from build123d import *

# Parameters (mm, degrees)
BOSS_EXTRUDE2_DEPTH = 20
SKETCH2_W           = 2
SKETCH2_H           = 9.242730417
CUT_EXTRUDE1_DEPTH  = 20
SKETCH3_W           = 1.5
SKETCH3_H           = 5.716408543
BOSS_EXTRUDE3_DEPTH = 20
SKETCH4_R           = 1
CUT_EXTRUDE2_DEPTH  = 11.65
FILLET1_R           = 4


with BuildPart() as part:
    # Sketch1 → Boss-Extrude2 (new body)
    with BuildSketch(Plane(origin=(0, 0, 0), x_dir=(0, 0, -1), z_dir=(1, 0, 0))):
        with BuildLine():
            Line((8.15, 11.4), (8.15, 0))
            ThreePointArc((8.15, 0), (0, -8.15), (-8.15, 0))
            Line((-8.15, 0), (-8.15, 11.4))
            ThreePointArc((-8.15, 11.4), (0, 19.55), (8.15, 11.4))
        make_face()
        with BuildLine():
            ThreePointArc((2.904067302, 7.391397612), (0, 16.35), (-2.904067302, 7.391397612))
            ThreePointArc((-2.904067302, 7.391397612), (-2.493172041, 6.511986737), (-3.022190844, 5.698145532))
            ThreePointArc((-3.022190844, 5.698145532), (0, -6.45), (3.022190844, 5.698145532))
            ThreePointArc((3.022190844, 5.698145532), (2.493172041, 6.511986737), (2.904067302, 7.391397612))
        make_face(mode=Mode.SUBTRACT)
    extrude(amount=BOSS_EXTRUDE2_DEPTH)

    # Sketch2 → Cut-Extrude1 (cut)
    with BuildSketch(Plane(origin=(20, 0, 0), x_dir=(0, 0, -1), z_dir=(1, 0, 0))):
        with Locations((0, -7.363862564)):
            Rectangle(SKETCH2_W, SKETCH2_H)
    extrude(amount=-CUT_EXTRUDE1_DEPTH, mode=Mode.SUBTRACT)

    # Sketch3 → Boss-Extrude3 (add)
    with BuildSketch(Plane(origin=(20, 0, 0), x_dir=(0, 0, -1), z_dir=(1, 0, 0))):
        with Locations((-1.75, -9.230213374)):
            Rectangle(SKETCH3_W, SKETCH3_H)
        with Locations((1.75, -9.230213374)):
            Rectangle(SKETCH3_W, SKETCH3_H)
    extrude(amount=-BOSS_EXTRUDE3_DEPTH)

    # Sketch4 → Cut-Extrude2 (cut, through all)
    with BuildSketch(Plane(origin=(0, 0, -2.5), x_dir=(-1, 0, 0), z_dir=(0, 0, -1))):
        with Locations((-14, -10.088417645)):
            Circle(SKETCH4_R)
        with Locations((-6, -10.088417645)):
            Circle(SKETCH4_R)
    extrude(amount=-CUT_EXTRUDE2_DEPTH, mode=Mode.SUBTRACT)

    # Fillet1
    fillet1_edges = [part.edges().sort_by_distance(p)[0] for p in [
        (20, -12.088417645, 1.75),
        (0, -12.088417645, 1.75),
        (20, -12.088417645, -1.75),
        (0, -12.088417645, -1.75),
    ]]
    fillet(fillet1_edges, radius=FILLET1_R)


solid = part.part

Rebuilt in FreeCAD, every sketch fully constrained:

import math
import FreeCAD as App
import Part
import Sketcher


def edges_at(feature, points):
    """Names of the edges that pass closest to the given points."""
    edges = feature.Shape.Edges
    near = lambda p: min(range(len(edges)), key=lambda i: edges[i].distToShape(Part.Vertex(*p))[0])
    return sorted({f"Edge{near(p) + 1}" for p in points})

doc = App.newDocument("Part")
body = doc.addObject("PartDesign::Body", "Body")

sketch1 = body.newObject("Sketcher::SketchObject", "Sketch")
sketch1.AttachmentSupport = (doc.getObject("YZ_Plane"), [""])
sketch1.MapMode = "FlatFace"
sketch1.addGeometry([
    Part.LineSegment(App.Vector(0, -8.2, 0), App.Vector(11.4, -8.2, 0)),
    Part.ArcOfCircle(Part.Circle(App.Vector(11.4, 0, 0), App.Vector(0, 0, 1), 8.2), math.radians(-90), math.radians(90)),
    Part.LineSegment(App.Vector(11.4, 8.2, 0), App.Vector(0, 8.2, 0)),
    Part.ArcOfCircle(Part.Circle(App.Vector(0, 0, 0), App.Vector(0, 0, 1), 8.2), math.radians(90), math.radians(270)),
    Part.ArcOfCircle(Part.Circle(App.Vector(6.6, -3.5, 0), App.Vector(0, 0, 1), 1), math.radians(36), math.radians(152)),
    Part.ArcOfCircle(Part.Circle(App.Vector(0, 0, 0), App.Vector(0, 0, 1), 6.5), math.radians(28), math.radians(332)),
    Part.ArcOfCircle(Part.Circle(App.Vector(6.6, 3.5, 0), App.Vector(0, 0, 1), 1), math.radians(-152), math.radians(-36)),
    Part.ArcOfCircle(Part.Circle(App.Vector(11.4, 0, 0), App.Vector(0, 0, 1), 5), math.radians(-144), math.radians(144)),
], False)
sketch1.addConstraint([
    Sketcher.Constraint("Tangent", 0, 2, 1, 1),
    Sketcher.Constraint("Tangent", 1, 2, 2, 1),
    Sketcher.Constraint("Tangent", 2, 2, 3, 1),
    Sketcher.Constraint("Tangent", 3, 2, 0, 1),
    Sketcher.Constraint("Tangent", 4, 2, 5, 2),
    Sketcher.Constraint("Tangent", 5, 1, 6, 1),
    Sketcher.Constraint("Tangent", 6, 2, 7, 2),
    Sketcher.Constraint("Tangent", 7, 1, 4, 1),
    Sketcher.Constraint("Horizontal", 0),
    Sketcher.Constraint("Horizontal", 2),
    Sketcher.Constraint("Coincident", 3, 3, -1, 1),
    Sketcher.Constraint("Coincident", 5, 3, -1, 1),
    Sketcher.Constraint("Coincident", 7, 3, 1, 3),
    Sketcher.Constraint("Equal", 4, 6),
    Sketcher.Constraint("Radius", 4, 1.0),
    Sketcher.Constraint("Radius", 1, 8.15),
    Sketcher.Constraint("Radius", 5, 6.45),
    Sketcher.Constraint("Radius", 7, 4.95),
    Sketcher.Constraint("DistanceX", 0, 1, 0, 2, 11.4),
])
pad1 = body.newObject("PartDesign::Pad", "Pad")
pad1.Profile = sketch1
pad1.Length = 20

sketch2 = body.newObject("Sketcher::SketchObject", "Sketch001")
sketch2.AttachmentSupport = (doc.getObject("YZ_Plane"), [""])
sketch2.MapMode = "FlatFace"
sketch2.AttachmentOffset = App.Placement(App.Vector(0, 0, 20), App.Rotation())
sketch2.addGeometry([
    Part.LineSegment(App.Vector(-2.7, 1, 0), App.Vector(-12, 1, 0)),
    Part.LineSegment(App.Vector(-12, 1, 0), App.Vector(-12, -1, 0)),
    Part.LineSegment(App.Vector(-12, -1, 0), App.Vector(-2.7, -1, 0)),
    Part.LineSegment(App.Vector(-2.7, -1, 0), App.Vector(-2.7, 1, 0)),
], False)
sketch2.addConstraint([
    Sketcher.Constraint("Coincident", 0, 2, 1, 1),
    Sketcher.Constraint("Coincident", 1, 2, 2, 1),
    Sketcher.Constraint("Coincident", 2, 2, 3, 1),
    Sketcher.Constraint("Coincident", 3, 2, 0, 1),
    Sketcher.Constraint("Horizontal", 0),
    Sketcher.Constraint("Vertical", 1),
    Sketcher.Constraint("Horizontal", 2),
    Sketcher.Constraint("Vertical", 3),
    Sketcher.Constraint("DistanceY", 1, 2, 1, 1, 2.0),
    Sketcher.Constraint("DistanceY", -1, 1, 0, 2, 1.0),
    Sketcher.Constraint("DistanceX", 0, 2, 0, 1, 9.24273),
    Sketcher.Constraint("DistanceX", 0, 2, -1, 1, 11.985228),
])
pocket1 = body.newObject("PartDesign::Pocket", "Pocket")
pocket1.Profile = sketch2
pocket1.Length = 20

sketch3 = body.newObject("Sketcher::SketchObject", "Sketch002")
sketch3.AttachmentSupport = (doc.getObject("YZ_Plane"), [""])
sketch3.MapMode = "FlatFace"
sketch3.AttachmentOffset = App.Placement(App.Vector(0, 0, 20), App.Rotation())
sketch3.addGeometry([
    Part.LineSegment(App.Vector(-6.4, 2.5, 0), App.Vector(-12.1, 2.5, 0)),
    Part.LineSegment(App.Vector(-12.1, 2.5, 0), App.Vector(-12.1, 1, 0)),
    Part.LineSegment(App.Vector(-12.1, 1, 0), App.Vector(-6.4, 1, 0)),
    Part.LineSegment(App.Vector(-6.4, 1, 0), App.Vector(-6.4, 2.5, 0)),
    Part.LineSegment(App.Vector(-6.4, -1, 0), App.Vector(-12.1, -1, 0)),
    Part.LineSegment(App.Vector(-12.1, -1, 0), App.Vector(-12.1, -2.5, 0)),
    Part.LineSegment(App.Vector(-12.1, -2.5, 0), App.Vector(-6.4, -2.5, 0)),
    Part.LineSegment(App.Vector(-6.4, -2.5, 0), App.Vector(-6.4, -1, 0)),
], False)
sketch3.addConstraint([
    Sketcher.Constraint("Coincident", 0, 2, 1, 1),
    Sketcher.Constraint("Coincident", 1, 2, 2, 1),
    Sketcher.Constraint("Coincident", 2, 2, 3, 1),
    Sketcher.Constraint("Coincident", 3, 2, 0, 1),
    Sketcher.Constraint("Coincident", 4, 2, 5, 1),
    Sketcher.Constraint("Coincident", 5, 2, 6, 1),
    Sketcher.Constraint("Coincident", 6, 2, 7, 1),
    Sketcher.Constraint("Coincident", 7, 2, 4, 1),
    Sketcher.Constraint("Horizontal", 0),
    Sketcher.Constraint("Vertical", 1),
    Sketcher.Constraint("Horizontal", 2),
    Sketcher.Constraint("Vertical", 3),
    Sketcher.Constraint("Horizontal", 4),
    Sketcher.Constraint("Vertical", 5),
    Sketcher.Constraint("Horizontal", 6),
    Sketcher.Constraint("Vertical", 7),
    Sketcher.Constraint("Symmetric", 1, 2, 4, 2, -1),
    Sketcher.Constraint("Symmetric", 3, 2, 6, 2, -1),
    Sketcher.Constraint("DistanceY", 1, 2, 1, 1, 1.5),
    Sketcher.Constraint("DistanceY", -1, 1, 1, 2, 1.0),
    Sketcher.Constraint("DistanceX", 0, 2, 0, 1, 5.716409),
    Sketcher.Constraint("DistanceX", 2, 2, -1, 1, 6.372009),
])
pad2 = body.newObject("PartDesign::Pad", "Pad001")
pad2.Profile = sketch3
pad2.Length = 20
pad2.Reversed = True

sketch4 = body.newObject("Sketcher::SketchObject", "Sketch003")
sketch4.AttachmentSupport = (doc.getObject("XY_Plane"), [""])
sketch4.MapMode = "FlatFace"
sketch4.AttachmentOffset = App.Placement(App.Vector(0, 0, -2.5), App.Rotation())
sketch4.addGeometry([
    Part.Circle(App.Vector(14, -10.1, 0), App.Vector(0, 0, 1), 1),
    Part.Circle(App.Vector(6, -10.1, 0), App.Vector(0, 0, 1), 1),
], False)
sketch4.addConstraint([
    Sketcher.Constraint("Equal", 0, 1),
    Sketcher.Constraint("Horizontal", 0, 3, 1, 3),
    Sketcher.Constraint("Diameter", 0, 2.0),
    Sketcher.Constraint("DistanceX", -1, 1, 0, 3, 14.0),
    Sketcher.Constraint("DistanceX", -1, 1, 1, 3, 6.0),
    Sketcher.Constraint("DistanceY", 0, 3, -1, 1, 10.088418),
])
pocket2 = body.newObject("PartDesign::Pocket", "Pocket001")
pocket2.Profile = sketch4
pocket2.Type = "ThroughAll"
pocket2.Reversed = True
doc.recompute()

fillet = body.newObject("PartDesign::Fillet", "Fillet")
fillet.Base = (pocket2, edges_at(pocket2, [
    (20, -12.088, 1.75),
    (0, -12.088, 1.75),
    (20, -12.088, -1.75),
    (0, -12.088, -1.75),
]))
fillet.Radius = 4

doc.recompute()
